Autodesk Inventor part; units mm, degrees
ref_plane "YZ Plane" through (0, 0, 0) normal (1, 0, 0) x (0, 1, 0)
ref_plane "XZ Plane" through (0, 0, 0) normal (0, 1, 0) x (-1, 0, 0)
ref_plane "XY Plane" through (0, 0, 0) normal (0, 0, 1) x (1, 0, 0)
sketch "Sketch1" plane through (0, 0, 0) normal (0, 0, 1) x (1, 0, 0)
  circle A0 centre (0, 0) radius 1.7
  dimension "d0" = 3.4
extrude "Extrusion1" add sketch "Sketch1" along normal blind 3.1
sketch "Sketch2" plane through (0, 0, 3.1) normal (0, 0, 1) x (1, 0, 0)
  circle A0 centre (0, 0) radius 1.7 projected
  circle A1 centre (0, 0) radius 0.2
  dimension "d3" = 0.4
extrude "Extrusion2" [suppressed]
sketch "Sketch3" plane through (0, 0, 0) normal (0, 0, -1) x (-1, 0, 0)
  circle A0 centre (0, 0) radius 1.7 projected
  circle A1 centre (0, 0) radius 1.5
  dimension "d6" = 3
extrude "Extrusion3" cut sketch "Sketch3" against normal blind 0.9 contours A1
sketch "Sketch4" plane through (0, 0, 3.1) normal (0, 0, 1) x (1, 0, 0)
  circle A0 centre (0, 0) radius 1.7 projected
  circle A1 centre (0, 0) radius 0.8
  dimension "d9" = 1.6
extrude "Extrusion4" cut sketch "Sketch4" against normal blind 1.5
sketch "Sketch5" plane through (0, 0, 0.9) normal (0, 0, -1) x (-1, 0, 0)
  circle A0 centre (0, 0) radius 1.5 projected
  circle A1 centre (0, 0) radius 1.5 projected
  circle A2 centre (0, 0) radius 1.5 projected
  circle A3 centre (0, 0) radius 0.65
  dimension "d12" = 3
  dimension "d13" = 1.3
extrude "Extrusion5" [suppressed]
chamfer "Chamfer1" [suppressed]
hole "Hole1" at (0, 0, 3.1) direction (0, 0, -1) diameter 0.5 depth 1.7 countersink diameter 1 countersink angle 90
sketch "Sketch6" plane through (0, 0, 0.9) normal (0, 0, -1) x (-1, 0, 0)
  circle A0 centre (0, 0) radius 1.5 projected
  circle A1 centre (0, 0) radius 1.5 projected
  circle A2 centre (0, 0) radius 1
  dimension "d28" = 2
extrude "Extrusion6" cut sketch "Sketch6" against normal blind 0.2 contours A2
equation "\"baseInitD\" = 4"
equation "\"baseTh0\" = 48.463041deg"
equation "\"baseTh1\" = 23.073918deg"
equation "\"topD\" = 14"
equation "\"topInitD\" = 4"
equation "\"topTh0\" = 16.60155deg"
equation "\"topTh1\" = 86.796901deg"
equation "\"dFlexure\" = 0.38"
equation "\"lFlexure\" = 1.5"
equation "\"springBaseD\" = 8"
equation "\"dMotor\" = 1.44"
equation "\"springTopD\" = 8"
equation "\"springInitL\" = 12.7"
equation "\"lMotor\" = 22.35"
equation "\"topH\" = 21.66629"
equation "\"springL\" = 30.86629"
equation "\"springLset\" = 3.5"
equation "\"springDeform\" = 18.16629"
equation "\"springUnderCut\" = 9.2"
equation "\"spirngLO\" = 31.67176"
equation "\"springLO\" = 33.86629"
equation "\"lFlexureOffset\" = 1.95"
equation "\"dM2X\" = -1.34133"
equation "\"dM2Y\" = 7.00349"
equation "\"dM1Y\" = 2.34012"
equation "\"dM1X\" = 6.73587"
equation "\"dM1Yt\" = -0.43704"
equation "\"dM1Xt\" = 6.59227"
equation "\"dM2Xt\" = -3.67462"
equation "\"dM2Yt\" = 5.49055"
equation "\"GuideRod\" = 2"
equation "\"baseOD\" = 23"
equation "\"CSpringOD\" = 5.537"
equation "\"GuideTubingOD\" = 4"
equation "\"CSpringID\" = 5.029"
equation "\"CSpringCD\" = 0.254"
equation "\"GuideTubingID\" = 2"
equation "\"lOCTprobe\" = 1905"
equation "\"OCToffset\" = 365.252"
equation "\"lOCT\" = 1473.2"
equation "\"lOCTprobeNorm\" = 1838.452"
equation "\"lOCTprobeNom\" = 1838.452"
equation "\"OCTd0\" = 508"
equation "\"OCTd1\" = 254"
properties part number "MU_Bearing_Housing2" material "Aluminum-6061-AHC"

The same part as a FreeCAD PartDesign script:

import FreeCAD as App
import Part
import Sketcher

doc = App.newDocument("Part")
body = doc.addObject("PartDesign::Body", "Body")

sketch1 = doc.addObject("Sketcher::SketchObject", "Sketch")
body.addObject(sketch1)
sketch1.AttachmentSupport = (doc.XY_Plane, [""])
sketch1.MapMode = "FlatFace"
sketch1.addGeometry(Part.Circle(App.Vector(0, 0, 0), App.Vector(0, 0, 1), 1.7), False)
sketch1.addConstraint([
    Sketcher.Constraint("Coincident", 0, 3, -1, 1),
    Sketcher.Constraint("Diameter", 0, 3.4),
])
pad1 = doc.addObject("PartDesign::Pad", "Pad")
body.addObject(pad1)
pad1.Profile = sketch1
pad1.Length = 3.1

sketch2 = doc.addObject("Sketcher::SketchObject", "Sketch001")
body.addObject(sketch2)
sketch2.AttachmentSupport = (doc.XY_Plane, [""])
sketch2.MapMode = "FlatFace"
sketch2.addGeometry(Part.Circle(App.Vector(0, 0, 0), App.Vector(0, 0, 1), 1.5), False)
sketch2.addConstraint([
    Sketcher.Constraint("Coincident", 0, 3, -1, 1),
    Sketcher.Constraint("Diameter", 0, 3.0),
])
pocket1 = doc.addObject("PartDesign::Pocket", "Pocket")
body.addObject(pocket1)
pocket1.Profile = sketch2
pocket1.Length = 0.9
pocket1.Reversed = True

sketch3 = doc.addObject("Sketcher::SketchObject", "Sketch002")
body.addObject(sketch3)
sketch3.AttachmentSupport = (doc.XY_Plane, [""])
sketch3.MapMode = "FlatFace"
sketch3.AttachmentOffset = App.Placement(App.Vector(0, 0, 3.1), App.Rotation())
sketch3.addGeometry([
    Part.Circle(App.Vector(0, 0, 0), App.Vector(0, 0, 1), 1.7),
    Part.Circle(App.Vector(0, 0, 0), App.Vector(0, 0, 1), 0.8),
], False)
sketch3.addConstraint([
    Sketcher.Constraint("Coincident", 0, 3, -1, 1),
    Sketcher.Constraint("Coincident", 1, 3, -1, 1),
    Sketcher.Constraint("Diameter", 1, 1.6),
    Sketcher.Constraint("Diameter", 0, 3.4),
])
pocket2 = doc.addObject("PartDesign::Pocket", "Pocket001")
body.addObject(pocket2)
pocket2.Profile = sketch3
pocket2.Length = 1.5

sketch4 = doc.addObject("Sketcher::SketchObject", "Sketch003")
body.addObject(sketch4)
sketch4.AttachmentSupport = (doc.XY_Plane, [""])
sketch4.MapMode = "FlatFace"
sketch4.AttachmentOffset = App.Placement(App.Vector(0, 0, 3.1), App.Rotation())
sketch4.addGeometry(Part.Circle(App.Vector(0, 0, 0), App.Vector(0, 0, 1), 0.25), False)
sketch4.addConstraint([
    Sketcher.Constraint("Coincident", 0, 3, -1, 1),
    Sketcher.Constraint("Diameter", 0, 0.5),
])
doc.recompute()
hole = doc.addObject("PartDesign::Hole", "Hole")
body.addObject(hole)
hole.Profile = sketch4
hole.ThreadType = "None"
hole.Diameter = 0.5
hole.DepthType = "Dimension"
hole.Depth = 1.7
hole.DrillPoint = "Flat"
hole.HoleCutType = "Countersink"
hole.HoleCutDiameter = 1
hole.HoleCutCountersinkAngle = 90

sketch5 = doc.addObject("Sketcher::SketchObject", "Sketch004")
body.addObject(sketch5)
sketch5.AttachmentSupport = (doc.XY_Plane, [""])
sketch5.MapMode = "FlatFace"
sketch5.AttachmentOffset = App.Placement(App.Vector(0, 0, 0.9), App.Rotation())
sketch5.addGeometry(Part.Circle(App.Vector(0, 0, 0), App.Vector(0, 0, 1), 1), False)
sketch5.addConstraint([
    Sketcher.Constraint("Coincident", 0, 3, -1, 1),
    Sketcher.Constraint("Diameter", 0, 2.0),
])
pocket3 = doc.addObject("PartDesign::Pocket", "Pocket002")
body.addObject(pocket3)
pocket3.Profile = sketch5
pocket3.Length = 0.2
pocket3.Reversed = True

doc.recompute()
